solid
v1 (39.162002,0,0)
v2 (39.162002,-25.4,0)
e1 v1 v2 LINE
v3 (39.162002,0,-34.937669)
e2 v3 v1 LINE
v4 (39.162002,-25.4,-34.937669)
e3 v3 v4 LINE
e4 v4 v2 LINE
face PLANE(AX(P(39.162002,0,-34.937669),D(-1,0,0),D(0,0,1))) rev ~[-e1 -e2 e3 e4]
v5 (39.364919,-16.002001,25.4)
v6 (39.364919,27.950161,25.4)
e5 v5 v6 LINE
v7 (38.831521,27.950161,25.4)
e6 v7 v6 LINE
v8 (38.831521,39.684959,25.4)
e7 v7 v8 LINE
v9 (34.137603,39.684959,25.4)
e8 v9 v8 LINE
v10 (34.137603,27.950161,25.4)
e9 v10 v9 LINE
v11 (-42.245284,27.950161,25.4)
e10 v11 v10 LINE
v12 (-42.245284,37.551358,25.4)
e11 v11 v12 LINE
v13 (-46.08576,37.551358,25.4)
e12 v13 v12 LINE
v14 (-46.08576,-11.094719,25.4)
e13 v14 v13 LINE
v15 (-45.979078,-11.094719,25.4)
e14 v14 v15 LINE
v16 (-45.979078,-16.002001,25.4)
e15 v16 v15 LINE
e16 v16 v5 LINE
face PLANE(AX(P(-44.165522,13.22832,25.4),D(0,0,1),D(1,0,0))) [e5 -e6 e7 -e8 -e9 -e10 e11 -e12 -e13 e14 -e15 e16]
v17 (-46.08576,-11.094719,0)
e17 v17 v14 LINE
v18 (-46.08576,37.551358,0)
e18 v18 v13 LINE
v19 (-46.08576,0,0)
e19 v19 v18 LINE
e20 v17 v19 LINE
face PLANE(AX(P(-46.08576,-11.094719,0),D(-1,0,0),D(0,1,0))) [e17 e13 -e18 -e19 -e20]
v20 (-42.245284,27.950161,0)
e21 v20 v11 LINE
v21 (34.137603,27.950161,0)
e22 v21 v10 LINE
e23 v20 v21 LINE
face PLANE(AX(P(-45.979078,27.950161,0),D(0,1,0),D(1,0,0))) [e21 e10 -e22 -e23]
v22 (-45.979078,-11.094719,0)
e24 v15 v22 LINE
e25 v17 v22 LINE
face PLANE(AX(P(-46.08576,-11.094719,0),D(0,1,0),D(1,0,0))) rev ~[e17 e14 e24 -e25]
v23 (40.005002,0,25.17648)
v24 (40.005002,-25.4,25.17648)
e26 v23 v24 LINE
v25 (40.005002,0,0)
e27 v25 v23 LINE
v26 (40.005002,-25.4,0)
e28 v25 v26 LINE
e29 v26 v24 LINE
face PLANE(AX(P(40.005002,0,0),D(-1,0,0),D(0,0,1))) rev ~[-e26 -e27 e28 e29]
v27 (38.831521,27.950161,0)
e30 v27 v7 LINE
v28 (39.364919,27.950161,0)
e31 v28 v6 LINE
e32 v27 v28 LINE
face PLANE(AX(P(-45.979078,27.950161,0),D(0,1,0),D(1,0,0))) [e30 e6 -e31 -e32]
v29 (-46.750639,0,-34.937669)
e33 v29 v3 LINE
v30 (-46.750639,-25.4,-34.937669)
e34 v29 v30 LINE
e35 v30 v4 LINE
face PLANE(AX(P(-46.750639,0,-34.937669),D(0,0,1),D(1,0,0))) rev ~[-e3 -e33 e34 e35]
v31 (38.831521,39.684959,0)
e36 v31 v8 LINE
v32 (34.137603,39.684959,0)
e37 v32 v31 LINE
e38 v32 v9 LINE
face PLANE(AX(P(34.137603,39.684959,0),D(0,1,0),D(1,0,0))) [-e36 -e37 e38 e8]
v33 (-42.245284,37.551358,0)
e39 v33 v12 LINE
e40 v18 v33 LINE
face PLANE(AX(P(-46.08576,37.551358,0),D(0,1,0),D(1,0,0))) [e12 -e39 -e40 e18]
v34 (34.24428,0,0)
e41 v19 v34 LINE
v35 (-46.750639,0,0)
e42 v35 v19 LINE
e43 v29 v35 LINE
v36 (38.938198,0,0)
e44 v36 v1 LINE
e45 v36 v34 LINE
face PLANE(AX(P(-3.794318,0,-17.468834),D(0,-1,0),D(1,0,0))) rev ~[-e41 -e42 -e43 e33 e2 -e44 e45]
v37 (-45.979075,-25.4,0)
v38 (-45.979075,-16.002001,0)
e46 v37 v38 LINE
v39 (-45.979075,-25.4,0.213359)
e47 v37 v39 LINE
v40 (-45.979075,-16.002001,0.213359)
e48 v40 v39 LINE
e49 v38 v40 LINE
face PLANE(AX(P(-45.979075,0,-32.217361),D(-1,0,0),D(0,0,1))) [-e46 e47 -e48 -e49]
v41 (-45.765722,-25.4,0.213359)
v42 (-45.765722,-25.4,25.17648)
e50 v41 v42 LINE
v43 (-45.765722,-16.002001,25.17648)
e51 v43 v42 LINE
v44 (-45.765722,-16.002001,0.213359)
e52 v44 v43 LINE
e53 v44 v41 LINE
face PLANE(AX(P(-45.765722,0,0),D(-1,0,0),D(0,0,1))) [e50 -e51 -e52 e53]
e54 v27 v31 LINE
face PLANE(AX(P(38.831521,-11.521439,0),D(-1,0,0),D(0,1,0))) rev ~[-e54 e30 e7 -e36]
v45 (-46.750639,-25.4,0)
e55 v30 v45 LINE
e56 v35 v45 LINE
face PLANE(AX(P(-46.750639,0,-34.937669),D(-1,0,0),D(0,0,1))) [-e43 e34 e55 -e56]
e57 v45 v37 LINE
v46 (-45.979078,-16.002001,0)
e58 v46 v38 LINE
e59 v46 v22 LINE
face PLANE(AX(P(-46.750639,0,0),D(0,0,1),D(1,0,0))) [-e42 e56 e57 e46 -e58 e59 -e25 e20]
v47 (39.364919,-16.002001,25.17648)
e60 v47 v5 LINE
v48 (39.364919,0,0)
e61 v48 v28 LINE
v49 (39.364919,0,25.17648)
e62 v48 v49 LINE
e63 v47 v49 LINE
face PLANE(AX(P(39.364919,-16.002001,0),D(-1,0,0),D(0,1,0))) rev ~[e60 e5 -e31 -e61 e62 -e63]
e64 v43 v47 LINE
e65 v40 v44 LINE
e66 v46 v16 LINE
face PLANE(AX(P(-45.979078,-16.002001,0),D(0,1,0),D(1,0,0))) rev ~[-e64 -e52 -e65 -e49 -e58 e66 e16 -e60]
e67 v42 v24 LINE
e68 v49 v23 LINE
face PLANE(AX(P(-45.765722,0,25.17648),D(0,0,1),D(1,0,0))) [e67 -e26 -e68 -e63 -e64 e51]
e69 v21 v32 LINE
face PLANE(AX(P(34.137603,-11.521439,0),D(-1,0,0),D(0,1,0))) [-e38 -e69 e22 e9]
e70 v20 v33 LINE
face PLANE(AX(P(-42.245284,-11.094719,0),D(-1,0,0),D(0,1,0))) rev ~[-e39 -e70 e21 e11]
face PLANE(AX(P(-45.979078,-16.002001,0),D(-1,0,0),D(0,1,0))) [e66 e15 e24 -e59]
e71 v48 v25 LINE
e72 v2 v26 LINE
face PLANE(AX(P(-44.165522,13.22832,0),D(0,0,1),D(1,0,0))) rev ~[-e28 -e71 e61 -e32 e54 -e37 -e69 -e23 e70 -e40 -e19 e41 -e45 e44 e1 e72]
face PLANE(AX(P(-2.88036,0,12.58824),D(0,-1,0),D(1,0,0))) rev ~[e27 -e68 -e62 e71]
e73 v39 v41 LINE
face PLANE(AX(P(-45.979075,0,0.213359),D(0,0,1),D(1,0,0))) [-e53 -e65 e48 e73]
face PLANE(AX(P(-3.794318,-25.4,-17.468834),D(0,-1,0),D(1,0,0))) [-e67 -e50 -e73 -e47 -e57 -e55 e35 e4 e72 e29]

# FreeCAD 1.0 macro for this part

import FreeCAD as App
import Part
import Sketcher
from FreeCAD import Vector
Q = App.Units.Quantity


def add_polygon(sketch, points):
    """Adds a closed chain of lines whose ends are joined by coincident constraints."""
    first, n = sketch.GeometryCount, len(points)
    for a, b in zip(points, points[1:] + points[:1]):
        sketch.addGeometry(Part.LineSegment(App.Vector(*a, 0), App.Vector(*b, 0)), False)
    for i in range(n):
        sketch.addConstraint(Sketcher.Constraint("Coincident", first + i, 2, first + (i + 1) % n, 1))

doc = App.newDocument("Part")
body = doc.addObject("PartDesign::Body", "Body")

# Sketch on XY plane
sketch1 = body.newObject("Sketcher::SketchObject", "Sketch")
sketch1.AttachmentSupport = (doc.getObject("XY_Plane"), [""])
sketch1.MapMode = "FlatFace"
add_polygon(sketch1, [(-45.979078, 27.950161), (-45.979078, -16.002001), (39.364919, -16.002001), (39.364919, 27.950161)])  # lines 0-3
sketch1.addConstraint(Sketcher.Constraint("Vertical", 0))
sketch1.addConstraint(Sketcher.Constraint("Horizontal", 1))
sketch1.addConstraint(Sketcher.Constraint("Vertical", 2))
sketch1.addConstraint(Sketcher.Constraint("Horizontal", 3))
sketch1.addConstraint(Sketcher.Constraint("DistanceX", 1, 1, 1, 2, Q("3.3599999 in")))
sketch1.addConstraint(Sketcher.Constraint("DistanceY", 0, 2, -1, 1, Q("0.63 in")))
sketch1.addConstraint(Sketcher.Constraint("DistanceY", 0, 2, 0, 1, Q("1.7304001 in")))
sketch1.addConstraint(Sketcher.Constraint("DistanceX", 0, 2, -1, 1, Q("1.8101999 in")))
pad1 = body.newObject("PartDesign::Pad", "Pad")
pad1.Profile = sketch1
pad1.Length = Q("1 in")

# Sketch on XZ plane
sketch2 = body.newObject("Sketcher::SketchObject", "Sketch001")
sketch2.AttachmentSupport = (doc.getObject("XZ_Plane"), [""])
sketch2.MapMode = "FlatFace"
add_polygon(sketch2, [(-45.979075, 0.213359), (-45.979075, -32.217361), (-41.711881, -32.217361), (-41.711881, 0.213359)])  # lines 0-3
add_polygon(sketch2, [(34.24428, 0), (34.24428, -33.28416), (38.938198, -33.28416), (38.938198, 0)])  # lines 4-7
sketch2.addConstraint(Sketcher.Constraint("Vertical", 0))
sketch2.addConstraint(Sketcher.Constraint("Horizontal", 1))
sketch2.addConstraint(Sketcher.Constraint("Vertical", 2))
sketch2.addConstraint(Sketcher.Constraint("Horizontal", 3))
sketch2.addConstraint(Sketcher.Constraint("Vertical", 4))
sketch2.addConstraint(Sketcher.Constraint("Horizontal", 5))
sketch2.addConstraint(Sketcher.Constraint("Vertical", 6))
sketch2.addConstraint(Sketcher.Constraint("Horizontal", 7))
sketch2.addConstraint(Sketcher.Constraint("PointOnObject", 6, 2, -1))
sketch2.addConstraint(Sketcher.Constraint("DistanceX", 5, 1, 5, 2, Q("0.1847999 in")))
sketch2.addConstraint(Sketcher.Constraint("DistanceY", 0, 2, 0, 1, Q("1.2768 in")))
sketch2.addConstraint(Sketcher.Constraint("DistanceY", 4, 2, 4, 1, Q("1.3104 in")))
sketch2.addConstraint(Sketcher.Constraint("DistanceX", -1, 1, 5, 2, Q("1.5329999 in")))
sketch2.addConstraint(Sketcher.Constraint("DistanceY", 4, 2, 1, 2, Q("0.042 in")))
sketch2.addConstraint(Sketcher.Constraint("DistanceX", 1, 2, -1, 1, Q("1.6422001 in")))
sketch2.addConstraint(Sketcher.Constraint("DistanceX", 1, 1, 1, 2, Q("4.267193 mm")))
pad2 = body.newObject("PartDesign::Pad", "Pad001")
pad2.Profile = sketch2
pad2.Length = Q("1 in")

# Sketch on XZ plane
sketch3 = body.newObject("Sketcher::SketchObject", "Sketch002")
sketch3.AttachmentSupport = (doc.getObject("XZ_Plane"), [""])
sketch3.MapMode = "FlatFace"
add_polygon(sketch3, [(34.137603, 0.213359), (34.137603, -33.497521), (38.831521, -33.497521), (38.831521, 0.213359)])  # lines 0-3
add_polygon(sketch3, [(-45.872397, 0.213359), (-45.872397, -32.644078), (-42.03192, -32.644078), (-42.03192, 0.213359)])  # lines 4-7
sketch3.addConstraint(Sketcher.Constraint("Vertical", 0))
sketch3.addConstraint(Sketcher.Constraint("Horizontal", 1))
sketch3.addConstraint(Sketcher.Constraint("Vertical", 2))
sketch3.addConstraint(Sketcher.Constraint("Horizontal", 3))
sketch3.addConstraint(Sketcher.Constraint("Vertical", 4))
sketch3.addConstraint(Sketcher.Constraint("Horizontal", 5))
sketch3.addConstraint(Sketcher.Constraint("Vertical", 6))
sketch3.addConstraint(Sketcher.Constraint("Horizontal", 7))
sketch3.addConstraint(Sketcher.Constraint("Horizontal", 3, 2, 6, 2))
sketch3.addConstraint(Sketcher.Constraint("DistanceX", 4, 2, 0, 2, Q("3.15 in")))
sketch3.addConstraint(Sketcher.Constraint("DistanceX", 1, 1, 1, 2, Q("0.1847999 in")))
sketch3.addConstraint(Sketcher.Constraint("DistanceX", 5, 1, 5, 2, Q("0.1511999 in")))
sketch3.addConstraint(Sketcher.Constraint("DistanceY", 0, 2, 0, 1, Q("1.3272 in")))
sketch3.addConstraint(Sketcher.Constraint("DistanceY", 4, 2, 4, 1, Q("1.2935999 in")))
sketch3.addConstraint(Sketcher.Constraint("DistanceX", -1, 1, 0, 2, Q("1.3440001 in")))
sketch3.addConstraint(Sketcher.Constraint("DistanceY", 0, 2, -1, 1, Q("1.3188 in")))
pad3 = body.newObject("PartDesign::Pad", "Pad002")
pad3.Profile = sketch3
pad3.Length = Q("1 in")

# Sketch on XY plane
sketch4 = body.newObject("Sketcher::SketchObject", "Sketch003")
sketch4.AttachmentSupport = (doc.getObject("XY_Plane"), [""])
sketch4.MapMode = "FlatFace"
add_polygon(sketch4, [(-46.08576, 37.551358), (-46.08576, -11.094719), (-42.245284, -11.094719), (-42.245284, 37.551358)])  # lines 0-3
add_polygon(sketch4, [(34.137603, 39.684959), (34.137603, -11.521439), (38.831521, -11.521439), (38.831521, 39.684959)])  # lines 4-7
sketch4.addConstraint(Sketcher.Constraint("Vertical", 0))
sketch4.addConstraint(Sketcher.Constraint("Horizontal", 1))
sketch4.addConstraint(Sketcher.Constraint("Vertical", 2))
sketch4.addConstraint(Sketcher.Constraint("Horizontal", 3))
sketch4.addConstraint(Sketcher.Constraint("Vertical", 4))
sketch4.addConstraint(Sketcher.Constraint("Horizontal", 5))
sketch4.addConstraint(Sketcher.Constraint("Vertical", 6))
sketch4.addConstraint(Sketcher.Constraint("Horizontal", 7))
sketch4.addConstraint(Sketcher.Constraint("DistanceY", 4, 2, 4, 1, Q("2.0159999 in")))
sketch4.addConstraint(Sketcher.Constraint("DistanceX", 1, 1, 1, 2, Q("0.1511998 in")))
sketch4.addConstraint(Sketcher.Constraint("DistanceX", 5, 1, 5, 2, Q("0.1847999 in")))
sketch4.addConstraint(Sketcher.Constraint("DistanceY", 0, 2, 0, 1, Q("1.9151999 in")))
sketch4.addConstraint(Sketcher.Constraint("DistanceX", -1, 1, 4, 2, Q("1.3440001 in")))
sketch4.addConstraint(Sketcher.Constraint("DistanceY", 4, 2, 2, 2, Q("1.9319999 in")))
sketch4.addConstraint(Sketcher.Constraint("DistanceX", 1, 2, 5, 2, Q("3.1920002 in")))
sketch4.addConstraint(Sketcher.Constraint("DistanceY", 0, 2, -1, 1, Q("0.4367999 in")))
pad4 = body.newObject("PartDesign::Pad", "Pad003")
pad4.Profile = sketch4
pad4.Length = Q("1 in")

# Sketch on XZ plane
sketch5 = body.newObject("Sketcher::SketchObject", "Sketch004")
sketch5.AttachmentSupport = (doc.getObject("XZ_Plane"), [""])
sketch5.MapMode = "FlatFace"
add_polygon(sketch5, [(-45.765722, 25.17648), (-45.765722, 0), (40.005002, 0), (40.005002, 25.17648)])  # lines 0-3
sketch5.addConstraint(Sketcher.Constraint("Vertical", 0))
sketch5.addConstraint(Sketcher.Constraint("Horizontal", 1))
sketch5.addConstraint(Sketcher.Constraint("Vertical", 2))
sketch5.addConstraint(Sketcher.Constraint("Horizontal", 3))
sketch5.addConstraint(Sketcher.Constraint("PointOnObject", 0, 2, -1))
sketch5.addConstraint(Sketcher.Constraint("DistanceX", 1, 1, 1, 2, Q("3.3768002 in")))
sketch5.addConstraint(Sketcher.Constraint("DistanceY", 0, 2, 0, 1, Q("0.9912 in")))
sketch5.addConstraint(Sketcher.Constraint("DistanceX", -1, 1, 1, 2, Q("1.5750001 in")))
pad5 = body.newObject("PartDesign::Pad", "Pad004")
pad5.Profile = sketch5
pad5.Length = Q("1 in")

# Sketch on XZ plane
sketch6 = body.newObject("Sketcher::SketchObject", "Sketch005")
sketch6.AttachmentSupport = (doc.getObject("XZ_Plane"), [""])
sketch6.MapMode = "FlatFace"
add_polygon(sketch6, [(-46.750639, 0), (-46.750639, -34.937669), (39.162002, -34.937669), (39.162002, 0)])  # lines 0-3
sketch6.addConstraint(Sketcher.Constraint("Vertical", 0))
sketch6.addConstraint(Sketcher.Constraint("Horizontal", 1))
sketch6.addConstraint(Sketcher.Constraint("Vertical", 2))
sketch6.addConstraint(Sketcher.Constraint("Horizontal", 3))
sketch6.addConstraint(Sketcher.Constraint("PointOnObject", 2, 2, -1))
sketch6.addConstraint(Sketcher.Constraint("DistanceX", 1, 1, 1, 2, Q("85.912641 mm")))
sketch6.addConstraint(Sketcher.Constraint("DistanceY", 0, 2, 0, 1, Q("34.937669 mm")))
sketch6.addConstraint(Sketcher.Constraint("DistanceX", 0, 2, -1, 1, Q("46.750639 mm")))
pad6 = body.newObject("PartDesign::Pad", "Pad005")
pad6.Profile = sketch6
pad6.Length = Q("1 in")

doc.recompute()
